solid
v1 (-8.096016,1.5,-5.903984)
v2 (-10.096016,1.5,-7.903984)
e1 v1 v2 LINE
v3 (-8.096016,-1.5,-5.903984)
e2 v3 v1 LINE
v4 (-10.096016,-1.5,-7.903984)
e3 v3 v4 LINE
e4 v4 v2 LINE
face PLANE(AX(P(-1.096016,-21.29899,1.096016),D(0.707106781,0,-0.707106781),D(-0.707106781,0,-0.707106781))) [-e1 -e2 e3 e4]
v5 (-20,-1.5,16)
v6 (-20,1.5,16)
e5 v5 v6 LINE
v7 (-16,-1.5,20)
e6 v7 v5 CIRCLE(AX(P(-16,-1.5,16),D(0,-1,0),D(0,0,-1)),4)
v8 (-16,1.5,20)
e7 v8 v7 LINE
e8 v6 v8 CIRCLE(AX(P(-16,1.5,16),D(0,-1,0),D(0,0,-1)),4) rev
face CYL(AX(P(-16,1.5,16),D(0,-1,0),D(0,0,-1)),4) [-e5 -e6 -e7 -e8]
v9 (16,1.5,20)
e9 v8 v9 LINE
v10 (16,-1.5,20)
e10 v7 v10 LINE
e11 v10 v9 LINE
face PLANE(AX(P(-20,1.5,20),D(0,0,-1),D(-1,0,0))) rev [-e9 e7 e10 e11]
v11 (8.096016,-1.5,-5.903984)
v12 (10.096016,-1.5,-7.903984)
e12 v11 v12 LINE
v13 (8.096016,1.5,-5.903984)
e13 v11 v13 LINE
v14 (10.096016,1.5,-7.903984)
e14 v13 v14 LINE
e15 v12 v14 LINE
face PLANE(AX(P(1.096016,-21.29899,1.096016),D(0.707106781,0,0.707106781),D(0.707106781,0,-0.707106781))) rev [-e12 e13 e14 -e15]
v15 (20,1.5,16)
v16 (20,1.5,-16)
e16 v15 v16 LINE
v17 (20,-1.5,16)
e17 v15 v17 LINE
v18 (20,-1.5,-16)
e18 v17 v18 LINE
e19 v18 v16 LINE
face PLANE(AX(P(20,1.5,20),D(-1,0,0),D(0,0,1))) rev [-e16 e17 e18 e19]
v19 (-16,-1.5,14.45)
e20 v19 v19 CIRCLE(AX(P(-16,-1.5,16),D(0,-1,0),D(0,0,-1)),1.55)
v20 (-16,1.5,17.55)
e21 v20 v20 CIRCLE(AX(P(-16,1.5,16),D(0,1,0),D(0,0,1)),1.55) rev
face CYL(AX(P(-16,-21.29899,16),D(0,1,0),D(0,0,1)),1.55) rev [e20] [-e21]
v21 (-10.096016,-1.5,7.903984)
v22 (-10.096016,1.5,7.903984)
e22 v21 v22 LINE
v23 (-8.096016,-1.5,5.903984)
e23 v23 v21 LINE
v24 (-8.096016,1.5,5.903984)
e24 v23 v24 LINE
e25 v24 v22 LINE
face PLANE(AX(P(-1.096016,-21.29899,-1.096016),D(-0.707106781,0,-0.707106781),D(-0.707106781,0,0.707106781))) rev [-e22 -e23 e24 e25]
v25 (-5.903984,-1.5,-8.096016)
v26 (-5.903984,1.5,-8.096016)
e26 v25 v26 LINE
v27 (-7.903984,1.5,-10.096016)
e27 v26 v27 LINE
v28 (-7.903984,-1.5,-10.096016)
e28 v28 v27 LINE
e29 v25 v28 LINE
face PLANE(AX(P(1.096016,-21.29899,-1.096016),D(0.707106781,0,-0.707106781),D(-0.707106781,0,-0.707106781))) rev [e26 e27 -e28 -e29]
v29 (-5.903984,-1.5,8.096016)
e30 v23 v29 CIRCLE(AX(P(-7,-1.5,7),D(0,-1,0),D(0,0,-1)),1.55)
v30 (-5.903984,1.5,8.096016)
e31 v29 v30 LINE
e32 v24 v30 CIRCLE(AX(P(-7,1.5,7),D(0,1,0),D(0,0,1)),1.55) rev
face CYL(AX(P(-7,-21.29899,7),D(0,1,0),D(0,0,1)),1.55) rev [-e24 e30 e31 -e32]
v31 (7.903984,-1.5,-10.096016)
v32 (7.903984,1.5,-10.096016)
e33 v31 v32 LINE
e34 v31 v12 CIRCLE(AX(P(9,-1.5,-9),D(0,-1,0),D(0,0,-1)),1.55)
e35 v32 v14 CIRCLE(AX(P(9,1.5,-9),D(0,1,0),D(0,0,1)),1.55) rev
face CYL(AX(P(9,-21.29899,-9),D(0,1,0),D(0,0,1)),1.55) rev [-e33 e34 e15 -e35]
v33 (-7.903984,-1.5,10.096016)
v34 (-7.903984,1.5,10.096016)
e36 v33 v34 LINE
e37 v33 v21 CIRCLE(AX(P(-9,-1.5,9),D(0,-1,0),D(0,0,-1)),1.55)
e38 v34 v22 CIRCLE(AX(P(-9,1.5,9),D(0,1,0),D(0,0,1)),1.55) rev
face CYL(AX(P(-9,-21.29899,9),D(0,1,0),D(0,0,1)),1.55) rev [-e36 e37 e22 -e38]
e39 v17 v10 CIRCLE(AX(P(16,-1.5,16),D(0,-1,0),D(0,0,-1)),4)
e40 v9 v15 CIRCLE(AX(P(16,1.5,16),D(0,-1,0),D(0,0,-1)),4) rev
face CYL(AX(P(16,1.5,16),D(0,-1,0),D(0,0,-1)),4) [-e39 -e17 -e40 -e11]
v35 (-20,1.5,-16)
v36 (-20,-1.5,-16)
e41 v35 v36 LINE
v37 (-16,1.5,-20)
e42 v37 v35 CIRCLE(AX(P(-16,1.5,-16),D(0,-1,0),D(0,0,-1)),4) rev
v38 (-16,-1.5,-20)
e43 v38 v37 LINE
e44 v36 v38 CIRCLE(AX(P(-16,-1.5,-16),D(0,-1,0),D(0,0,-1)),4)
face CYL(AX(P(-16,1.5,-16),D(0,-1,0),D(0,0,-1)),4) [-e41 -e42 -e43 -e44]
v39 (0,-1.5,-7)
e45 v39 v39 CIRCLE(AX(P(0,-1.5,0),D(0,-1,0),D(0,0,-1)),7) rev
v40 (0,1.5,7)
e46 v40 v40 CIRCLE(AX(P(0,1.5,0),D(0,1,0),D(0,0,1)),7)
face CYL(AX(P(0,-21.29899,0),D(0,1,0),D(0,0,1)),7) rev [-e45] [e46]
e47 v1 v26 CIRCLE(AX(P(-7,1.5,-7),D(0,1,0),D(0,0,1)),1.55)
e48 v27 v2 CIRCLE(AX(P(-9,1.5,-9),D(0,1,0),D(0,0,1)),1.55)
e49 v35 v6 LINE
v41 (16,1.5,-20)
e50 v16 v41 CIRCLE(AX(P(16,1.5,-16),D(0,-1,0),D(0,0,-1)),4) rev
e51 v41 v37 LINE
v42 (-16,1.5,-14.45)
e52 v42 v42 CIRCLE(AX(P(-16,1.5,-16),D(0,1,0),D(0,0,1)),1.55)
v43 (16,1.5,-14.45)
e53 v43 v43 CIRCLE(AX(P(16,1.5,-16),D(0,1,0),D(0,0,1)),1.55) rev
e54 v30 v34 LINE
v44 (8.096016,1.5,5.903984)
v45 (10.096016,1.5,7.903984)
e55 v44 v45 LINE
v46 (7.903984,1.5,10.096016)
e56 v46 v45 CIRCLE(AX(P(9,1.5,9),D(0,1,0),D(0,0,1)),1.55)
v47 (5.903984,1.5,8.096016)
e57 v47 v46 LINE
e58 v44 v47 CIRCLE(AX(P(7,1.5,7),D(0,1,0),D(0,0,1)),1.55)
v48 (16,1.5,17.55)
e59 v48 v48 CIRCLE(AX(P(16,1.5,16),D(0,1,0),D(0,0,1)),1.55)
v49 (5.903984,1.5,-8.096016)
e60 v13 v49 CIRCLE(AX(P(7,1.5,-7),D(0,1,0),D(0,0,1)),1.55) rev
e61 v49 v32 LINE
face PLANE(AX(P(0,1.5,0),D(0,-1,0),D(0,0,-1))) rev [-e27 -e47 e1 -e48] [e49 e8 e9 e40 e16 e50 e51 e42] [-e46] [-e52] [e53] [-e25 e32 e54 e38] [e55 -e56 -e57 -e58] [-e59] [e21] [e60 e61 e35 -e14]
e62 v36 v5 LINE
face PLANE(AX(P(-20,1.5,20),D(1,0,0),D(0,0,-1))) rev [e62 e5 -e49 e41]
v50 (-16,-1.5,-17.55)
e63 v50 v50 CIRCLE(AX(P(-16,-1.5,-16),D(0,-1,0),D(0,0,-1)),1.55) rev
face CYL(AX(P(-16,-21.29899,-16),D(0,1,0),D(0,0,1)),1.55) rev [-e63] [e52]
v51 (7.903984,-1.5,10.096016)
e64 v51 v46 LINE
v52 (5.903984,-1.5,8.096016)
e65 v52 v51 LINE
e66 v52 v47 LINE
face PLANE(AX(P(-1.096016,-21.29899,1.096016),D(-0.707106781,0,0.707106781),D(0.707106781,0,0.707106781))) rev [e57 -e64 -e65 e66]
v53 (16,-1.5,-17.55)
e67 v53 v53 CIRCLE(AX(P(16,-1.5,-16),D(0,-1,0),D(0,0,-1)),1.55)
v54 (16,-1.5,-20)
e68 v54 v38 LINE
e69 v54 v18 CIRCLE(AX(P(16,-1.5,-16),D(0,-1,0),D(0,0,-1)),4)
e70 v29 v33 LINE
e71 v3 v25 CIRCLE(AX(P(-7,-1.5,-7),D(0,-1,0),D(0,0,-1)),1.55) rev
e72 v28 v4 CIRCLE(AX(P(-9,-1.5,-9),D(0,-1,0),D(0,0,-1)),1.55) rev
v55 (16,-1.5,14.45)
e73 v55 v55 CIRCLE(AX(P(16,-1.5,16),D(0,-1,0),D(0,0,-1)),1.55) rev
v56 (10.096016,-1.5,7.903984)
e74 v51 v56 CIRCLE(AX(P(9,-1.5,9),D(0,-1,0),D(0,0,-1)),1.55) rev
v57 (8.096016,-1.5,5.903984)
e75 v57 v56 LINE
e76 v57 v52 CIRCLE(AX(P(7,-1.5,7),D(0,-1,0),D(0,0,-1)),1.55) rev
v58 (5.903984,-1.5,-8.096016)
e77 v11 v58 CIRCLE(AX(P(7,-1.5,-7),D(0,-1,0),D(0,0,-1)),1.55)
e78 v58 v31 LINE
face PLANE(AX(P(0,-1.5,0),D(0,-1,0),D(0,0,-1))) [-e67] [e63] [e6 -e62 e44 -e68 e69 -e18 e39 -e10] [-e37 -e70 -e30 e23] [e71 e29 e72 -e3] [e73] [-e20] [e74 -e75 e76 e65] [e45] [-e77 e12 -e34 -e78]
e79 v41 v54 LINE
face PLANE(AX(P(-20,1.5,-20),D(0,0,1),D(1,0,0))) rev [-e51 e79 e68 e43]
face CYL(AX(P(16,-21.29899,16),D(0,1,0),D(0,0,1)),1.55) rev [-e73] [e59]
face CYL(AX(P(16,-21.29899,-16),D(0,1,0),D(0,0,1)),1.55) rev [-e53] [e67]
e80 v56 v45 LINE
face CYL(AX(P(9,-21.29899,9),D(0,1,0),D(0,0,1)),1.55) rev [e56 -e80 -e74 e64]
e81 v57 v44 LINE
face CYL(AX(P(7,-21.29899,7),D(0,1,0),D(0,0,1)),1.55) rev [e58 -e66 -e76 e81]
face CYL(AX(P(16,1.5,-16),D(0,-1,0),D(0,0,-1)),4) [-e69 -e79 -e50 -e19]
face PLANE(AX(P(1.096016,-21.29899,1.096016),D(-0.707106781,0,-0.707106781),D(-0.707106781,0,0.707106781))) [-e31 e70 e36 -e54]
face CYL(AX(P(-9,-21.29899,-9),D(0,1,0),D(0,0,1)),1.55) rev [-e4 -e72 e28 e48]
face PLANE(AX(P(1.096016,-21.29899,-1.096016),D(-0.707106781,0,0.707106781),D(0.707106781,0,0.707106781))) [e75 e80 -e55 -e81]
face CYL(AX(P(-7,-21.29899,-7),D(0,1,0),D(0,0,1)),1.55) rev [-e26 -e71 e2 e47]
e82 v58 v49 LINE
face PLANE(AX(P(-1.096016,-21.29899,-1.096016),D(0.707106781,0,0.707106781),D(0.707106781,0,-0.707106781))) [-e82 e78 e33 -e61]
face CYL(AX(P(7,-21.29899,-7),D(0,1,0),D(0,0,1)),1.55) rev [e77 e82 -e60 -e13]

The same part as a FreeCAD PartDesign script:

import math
import FreeCAD as App
import Part
import Sketcher

V = App.Vector
Q = App.Units.Quantity


def edges_at(feature, points):
    """Names of the edges that pass closest to the given points."""
    edges = feature.Shape.Edges
    near = lambda p: min(range(len(edges)), key=lambda i: edges[i].distToShape(Part.Vertex(*p))[0])
    return sorted({f"Edge{near(p) + 1}" for p in points})

doc = App.newDocument("Part")
params = doc.addObject("Spreadsheet::Sheet", "Params")
for row, (alias, value) in enumerate([
    ("sketch1_width", "40 mm"),
    ("pad1_length", "3 mm"),
    ("fillet_radius", "4 mm"),
    ("sketch2_radius", "7 mm"),
    ("sketch2_diameter", "3.1 mm"),
    ("pocket1_length", "3 mm"),
], start=1):
    params.set(f"A{row}", alias)
    params.set(f"B{row}", "=" + value)
    params.setAlias(f"B{row}", alias)

body = doc.addObject("PartDesign::Body", "Body")

# Sketch on XZ plane
sketch1 = body.newObject("Sketcher::SketchObject", "Sketch")
sketch1.AttachmentSupport = (doc.getObject("XZ_Plane"), [""])
sketch1.MapMode = "FlatFace"
sketch1.addGeometry([
    Part.LineSegment(V(-20, -20, 0), V(-20, 20, 0)),
    Part.LineSegment(V(-20, 20, 0), V(20, 20, 0)),
    Part.LineSegment(V(20, 20, 0), V(20, -20, 0)),
    Part.LineSegment(V(20, -20, 0), V(-20, -20, 0)),
], False)
sketch1.addConstraint([
    Sketcher.Constraint("Coincident", 0, 2, 1, 1),
    Sketcher.Constraint("Coincident", 1, 2, 2, 1),
    Sketcher.Constraint("Coincident", 2, 2, 3, 1),
    Sketcher.Constraint("Coincident", 3, 2, 0, 1),
    Sketcher.Constraint("Vertical", 0),
    Sketcher.Constraint("Horizontal", 1),
    Sketcher.Constraint("Vertical", 2),
    Sketcher.Constraint("Horizontal", 3),
    Sketcher.Constraint("Symmetric", 0, 2, 2, 2, -1, 1),
    Sketcher.Constraint("Equal", 3, 0),
    Sketcher.Constraint("DistanceX", 1, 1, 1, 2, Q("40 mm")),
])
sketch1.setExpression("Constraints[10]", "Params.sketch1_width")
pad1 = body.newObject("PartDesign::Pad", "Pad")
pad1.Profile = sketch1
pad1.setExpression("Length", "Params.pad1_length")
pad1.Midplane = True
doc.recompute()

fillet = body.newObject("PartDesign::Fillet", "Fillet")
fillet.Base = (pad1, edges_at(pad1, [
    (20, 0, 20),
    (-20, 0, 20),
    (-20, 0, -20),
    (20, 0, -20),
]))
fillet.setExpression("Radius", "Params.fillet_radius")

# Sketch on XZ plane
sketch2 = body.newObject("Sketcher::SketchObject", "Sketch001")
sketch2.AttachmentSupport = (doc.getObject("XZ_Plane"), [""])
sketch2.MapMode = "FlatFace"
sketch2.AttachmentOffset = App.Placement(V(0, 0, -1.5), App.Rotation())
sketch2.addGeometry([
    Part.ArcOfCircle(Part.Circle(V(0, 0, 0), V(0, 0, 1), 7), math.radians(-121), math.radians(-59)),  # 0
    Part.ArcOfCircle(Part.Circle(V(0, 0, 0), V(0, 0, 1), 7), math.radians(-149), math.radians(-121)),  # 1
    Part.ArcOfCircle(Part.Circle(V(0, 0, 0), V(0, 0, 1), 7), math.radians(149), math.radians(211)),  # 2
    Part.ArcOfCircle(Part.Circle(V(0, 0, 0), V(0, 0, 1), 7), math.radians(121), math.radians(149)),  # 3
    Part.ArcOfCircle(Part.Circle(V(0, 0, 0), V(0, 0, 1), 7), math.radians(59), math.radians(121)),  # 4
    Part.ArcOfCircle(Part.Circle(V(0, 0, 0), V(0, 0, 1), 7), math.radians(31), math.radians(59)),  # 5
    Part.ArcOfCircle(Part.Circle(V(0, 0, 0), V(0, 0, 1), 7), math.radians(0), math.radians(31)),  # 6
    Part.ArcOfCircle(Part.Circle(V(0, 0, 0), V(0, 0, 1), 7), math.radians(-31), math.radians(0)),  # 7
    Part.ArcOfCircle(Part.Circle(V(0, 0, 0), V(0, 0, 1), 7), math.radians(-59), math.radians(-31)),  # 8
    Part.ArcOfCircle(Part.Circle(V(7, 7, 0), V(0, 0, 1), 1.55), math.radians(135), math.radians(220)),  # 9
    Part.LineSegment(V(5.9, 8.1, 0), V(7.9, 10.1, 0)),  # 10
    Part.ArcOfCircle(Part.Circle(V(9, 9, 0), V(0, 0, 1), 1.55), math.radians(-45), math.radians(135)),  # 11
    Part.LineSegment(V(10.1, 7.9, 0), V(8.1, 5.9, 0)),  # 12
    Part.ArcOfCircle(Part.Circle(V(7, 7, 0), V(0, 0, 1), 1.55), math.radians(-130), math.radians(-45)),  # 13
    Part.ArcOfCircle(Part.Circle(V(7, 7, 0), V(0, 0, 1), 1.55), math.radians(-139.82), math.radians(-130.18)),  # 14
    Part.Circle(V(16, 16, 0), V(0, 0, 1), 1.55),  # 15
    Part.LineSegment(V(-7.9, 10.1, 0), V(-5.9, 8.1, 0)),  # 16
    Part.ArcOfCircle(Part.Circle(V(-7, 7, 0), V(0, 0, 1), 1.55), math.radians(-40), math.radians(45)),  # 17
    Part.ArcOfCircle(Part.Circle(V(-7, 7, 0), V(0, 0, 1), 1.55), math.radians(-49.82), math.radians(-40.18)),  # 18
    Part.ArcOfCircle(Part.Circle(V(-7, 7, 0), V(0, 0, 1), 1.55), math.radians(-135), math.radians(-50)),  # 19
    Part.LineSegment(V(-8.1, 5.9, 0), V(-10.1, 7.9, 0)),  # 20
    Part.ArcOfCircle(Part.Circle(V(-9, 9, 0), V(0, 0, 1), 1.55), math.radians(45), math.radians(225)),  # 21
    Part.ArcOfCircle(Part.Circle(V(-7, -7, 0), V(0, 0, 1), 1.55), math.radians(-45), math.radians(40)),  # 22
    Part.LineSegment(V(-5.9, -8.1, 0), V(-7.9, -10.1, 0)),  # 23
    Part.ArcOfCircle(Part.Circle(V(-9, -9, 0), V(0, 0, 1), 1.55), math.radians(135), math.radians(315)),  # 24
    Part.LineSegment(V(-10.1, -7.9, 0), V(-8.1, -5.9, 0)),  # 25
    Part.ArcOfCircle(Part.Circle(V(-7, -7, 0), V(0, 0, 1), 1.55), math.radians(50), math.radians(135)),  # 26
    Part.ArcOfCircle(Part.Circle(V(-7, -7, 0), V(0, 0, 1), 1.55), math.radians(40.18), math.radians(49.82)),  # 27
    Part.Circle(V(-16, -16, 0), V(0, 0, 1), 1.55),  # 28
    Part.LineSegment(V(7.9, -10.1, 0), V(5.9, -8.1, 0)),  # 29
    Part.ArcOfCircle(Part.Circle(V(7, -7, 0), V(0, 0, 1), 1.55), math.radians(140), math.radians(225)),  # 30
    Part.ArcOfCircle(Part.Circle(V(7, -7, 0), V(0, 0, 1), 1.55), math.radians(130.18), math.radians(139.82)),  # 31
    Part.ArcOfCircle(Part.Circle(V(7, -7, 0), V(0, 0, 1), 1.55), math.radians(45), math.radians(130)),  # 32
    Part.LineSegment(V(8.1, -5.9, 0), V(10.1, -7.9, 0)),  # 33
    Part.ArcOfCircle(Part.Circle(V(9, -9, 0), V(0, 0, 1), 1.55), math.radians(-135), math.radians(45)),  # 34
    Part.Circle(V(16, -16, 0), V(0, 0, 1), 1.55),  # 35
    Part.Circle(V(-16, 16, 0), V(0, 0, 1), 1.55),  # 36
], False)
sketch2.addConstraint([
    Sketcher.Constraint("Tangent", 0, 1, 1, 2),
    Sketcher.Constraint("Tangent", 1, 1, 2, 2),
    Sketcher.Constraint("Tangent", 2, 1, 3, 2),
    Sketcher.Constraint("Tangent", 3, 1, 4, 2),
    Sketcher.Constraint("Tangent", 4, 1, 5, 2),
    Sketcher.Constraint("Tangent", 5, 1, 6, 2),
    Sketcher.Constraint("Tangent", 6, 1, 7, 2),
    Sketcher.Constraint("Tangent", 7, 1, 8, 2),
    Sketcher.Constraint("Tangent", 8, 1, 0, 2),
    Sketcher.Constraint("Tangent", 9, 1, 10, 1),
    Sketcher.Constraint("Tangent", 10, 2, 11, 2),
    Sketcher.Constraint("Tangent", 11, 1, 12, 1),
    Sketcher.Constraint("Tangent", 12, 2, 13, 2),
    Sketcher.Constraint("Tangent", 13, 1, 14, 2),
    Sketcher.Constraint("Tangent", 14, 1, 9, 2),
    Sketcher.Constraint("Tangent", 16, 2, 17, 2),
    Sketcher.Constraint("Tangent", 17, 1, 18, 2),
    Sketcher.Constraint("Tangent", 18, 1, 19, 2),
    Sketcher.Constraint("Tangent", 19, 1, 20, 1),
    Sketcher.Constraint("Tangent", 20, 2, 21, 2),
    Sketcher.Constraint("Tangent", 21, 1, 16, 1),
    Sketcher.Constraint("Tangent", 22, 1, 23, 1),
    Sketcher.Constraint("Tangent", 23, 2, 24, 2),
    Sketcher.Constraint("Tangent", 24, 1, 25, 1),
    Sketcher.Constraint("Tangent", 25, 2, 26, 2),
    Sketcher.Constraint("Tangent", 26, 1, 27, 2),
    Sketcher.Constraint("Tangent", 27, 1, 22, 2),
    Sketcher.Constraint("Tangent", 29, 2, 30, 2),
    Sketcher.Constraint("Tangent", 30, 1, 31, 2),
    Sketcher.Constraint("Tangent", 31, 1, 32, 2),
    Sketcher.Constraint("Tangent", 32, 1, 33, 1),
    Sketcher.Constraint("Tangent", 33, 2, 34, 2),
    Sketcher.Constraint("Tangent", 34, 1, 29, 1),
    Sketcher.Constraint("Coincident", 0, 3, -1, 1),
    Sketcher.Constraint("Coincident", 2, 3, -1, 1),
    Sketcher.Constraint("Coincident", 4, 3, -1, 1),
    Sketcher.Constraint("Coincident", 6, 3, -1, 1),
    Sketcher.Constraint("Coincident", 13, 3, 9, 3),
    Sketcher.Constraint("Coincident", 19, 3, 17, 3),
    Sketcher.Constraint("Coincident", 26, 3, 22, 3),
    Sketcher.Constraint("Coincident", 32, 3, 30, 3),
    Sketcher.Constraint("Equal", 9, 11),
    Sketcher.Constraint("Equal", 14, 15),
    Sketcher.Constraint("Equal", 15, 17),
    Sketcher.Constraint("Equal", 19, 21),
    Sketcher.Constraint("Equal", 21, 22),
    Sketcher.Constraint("Equal", 22, 24),
    Sketcher.Constraint("Equal", 27, 28),
    Sketcher.Constraint("Equal", 28, 30),
    Sketcher.Constraint("Equal", 32, 34),
    Sketcher.Constraint("Equal", 34, 35),
    Sketcher.Constraint("Equal", 35, 36),
    Sketcher.Constraint("Symmetric", 9, 3, 22, 3, -1, 1),
    Sketcher.Constraint("Symmetric", 11, 3, 24, 3, -1, 1),
    Sketcher.Constraint("Symmetric", 15, 3, 28, 3, -1, 1),
    Sketcher.Constraint("Symmetric", 17, 3, 30, 3, -1, 1),
    Sketcher.Constraint("Symmetric", 21, 3, 34, 3, -1, 1),
    Sketcher.Constraint("Symmetric", 35, 3, 36, 3, -1, 1),
    Sketcher.Constraint("Symmetric", 9, 3, 17, 3, -2),
    Sketcher.Constraint("Symmetric", 11, 3, 21, 3, -2),
    Sketcher.Constraint("Symmetric", 28, 3, 35, 3, -2),
    Sketcher.Constraint("PointOnObject", 6, 1, -1),
    Sketcher.Constraint("Perpendicular", 12, 16),
    Sketcher.Constraint("Horizontal", 3, 1, 4, 1),
    Sketcher.Constraint("Horizontal", 2, 1, 5, 1),
    Sketcher.Constraint("Horizontal", 1, 1, 7, 1),
    Sketcher.Constraint("Horizontal", 0, 1, 8, 1),
    Sketcher.Constraint("Horizontal", 4, 1, 14, 1),
    Sketcher.Constraint("Horizontal", 14, 1, 17, 1),
    Sketcher.Constraint("Horizontal", 13, 1, 18, 1),
    Sketcher.Constraint("Horizontal", 8, 1, 27, 1),
    Sketcher.Constraint("Horizontal", 27, 1, 30, 1),
    Sketcher.Constraint("Horizontal", 26, 1, 31, 1),
    Sketcher.Constraint("Vertical", 1, 1, 2, 1),
    Sketcher.Constraint("Vertical", 0, 1, 3, 1),
    Sketcher.Constraint("Vertical", 32, 3, 6, 1),
    Sketcher.Constraint("Vertical", 7, 1, 13, 1),
    Sketcher.Constraint("Vertical", 18, 1, 26, 1),
    Sketcher.Constraint("Radius", 0, Q("7 mm")),
    Sketcher.Constraint("Diameter", 15, Q("3.1 mm")),
    Sketcher.Constraint("DistanceY", -1, 1, 9, 3, Q("7 mm")),
    Sketcher.Constraint("DistanceX", -1, 1, 11, 3, Q("9 mm")),
    Sketcher.Constraint("DistanceX", -1, 1, 15, 3, Q("16 mm")),
    Sketcher.Constraint("DistanceY", -1, 1, 15, 3, Q("16 mm")),
    Sketcher.Constraint("DistanceY", 0, 1, -1, 1, Q("6 mm")),
    Sketcher.Constraint("DistanceX", 1, 1, -1, 1, Q("6 mm")),
])
sketch2.setExpression("Constraints[78]", "Params.sketch2_radius")
sketch2.setExpression("Constraints[79]", "Params.sketch2_diameter")
pocket1 = body.newObject("PartDesign::Pocket", "Pocket")
pocket1.Profile = sketch2
pocket1.setExpression("Length", "Params.pocket1_length")
pocket1.Reversed = True

doc.recompute()
